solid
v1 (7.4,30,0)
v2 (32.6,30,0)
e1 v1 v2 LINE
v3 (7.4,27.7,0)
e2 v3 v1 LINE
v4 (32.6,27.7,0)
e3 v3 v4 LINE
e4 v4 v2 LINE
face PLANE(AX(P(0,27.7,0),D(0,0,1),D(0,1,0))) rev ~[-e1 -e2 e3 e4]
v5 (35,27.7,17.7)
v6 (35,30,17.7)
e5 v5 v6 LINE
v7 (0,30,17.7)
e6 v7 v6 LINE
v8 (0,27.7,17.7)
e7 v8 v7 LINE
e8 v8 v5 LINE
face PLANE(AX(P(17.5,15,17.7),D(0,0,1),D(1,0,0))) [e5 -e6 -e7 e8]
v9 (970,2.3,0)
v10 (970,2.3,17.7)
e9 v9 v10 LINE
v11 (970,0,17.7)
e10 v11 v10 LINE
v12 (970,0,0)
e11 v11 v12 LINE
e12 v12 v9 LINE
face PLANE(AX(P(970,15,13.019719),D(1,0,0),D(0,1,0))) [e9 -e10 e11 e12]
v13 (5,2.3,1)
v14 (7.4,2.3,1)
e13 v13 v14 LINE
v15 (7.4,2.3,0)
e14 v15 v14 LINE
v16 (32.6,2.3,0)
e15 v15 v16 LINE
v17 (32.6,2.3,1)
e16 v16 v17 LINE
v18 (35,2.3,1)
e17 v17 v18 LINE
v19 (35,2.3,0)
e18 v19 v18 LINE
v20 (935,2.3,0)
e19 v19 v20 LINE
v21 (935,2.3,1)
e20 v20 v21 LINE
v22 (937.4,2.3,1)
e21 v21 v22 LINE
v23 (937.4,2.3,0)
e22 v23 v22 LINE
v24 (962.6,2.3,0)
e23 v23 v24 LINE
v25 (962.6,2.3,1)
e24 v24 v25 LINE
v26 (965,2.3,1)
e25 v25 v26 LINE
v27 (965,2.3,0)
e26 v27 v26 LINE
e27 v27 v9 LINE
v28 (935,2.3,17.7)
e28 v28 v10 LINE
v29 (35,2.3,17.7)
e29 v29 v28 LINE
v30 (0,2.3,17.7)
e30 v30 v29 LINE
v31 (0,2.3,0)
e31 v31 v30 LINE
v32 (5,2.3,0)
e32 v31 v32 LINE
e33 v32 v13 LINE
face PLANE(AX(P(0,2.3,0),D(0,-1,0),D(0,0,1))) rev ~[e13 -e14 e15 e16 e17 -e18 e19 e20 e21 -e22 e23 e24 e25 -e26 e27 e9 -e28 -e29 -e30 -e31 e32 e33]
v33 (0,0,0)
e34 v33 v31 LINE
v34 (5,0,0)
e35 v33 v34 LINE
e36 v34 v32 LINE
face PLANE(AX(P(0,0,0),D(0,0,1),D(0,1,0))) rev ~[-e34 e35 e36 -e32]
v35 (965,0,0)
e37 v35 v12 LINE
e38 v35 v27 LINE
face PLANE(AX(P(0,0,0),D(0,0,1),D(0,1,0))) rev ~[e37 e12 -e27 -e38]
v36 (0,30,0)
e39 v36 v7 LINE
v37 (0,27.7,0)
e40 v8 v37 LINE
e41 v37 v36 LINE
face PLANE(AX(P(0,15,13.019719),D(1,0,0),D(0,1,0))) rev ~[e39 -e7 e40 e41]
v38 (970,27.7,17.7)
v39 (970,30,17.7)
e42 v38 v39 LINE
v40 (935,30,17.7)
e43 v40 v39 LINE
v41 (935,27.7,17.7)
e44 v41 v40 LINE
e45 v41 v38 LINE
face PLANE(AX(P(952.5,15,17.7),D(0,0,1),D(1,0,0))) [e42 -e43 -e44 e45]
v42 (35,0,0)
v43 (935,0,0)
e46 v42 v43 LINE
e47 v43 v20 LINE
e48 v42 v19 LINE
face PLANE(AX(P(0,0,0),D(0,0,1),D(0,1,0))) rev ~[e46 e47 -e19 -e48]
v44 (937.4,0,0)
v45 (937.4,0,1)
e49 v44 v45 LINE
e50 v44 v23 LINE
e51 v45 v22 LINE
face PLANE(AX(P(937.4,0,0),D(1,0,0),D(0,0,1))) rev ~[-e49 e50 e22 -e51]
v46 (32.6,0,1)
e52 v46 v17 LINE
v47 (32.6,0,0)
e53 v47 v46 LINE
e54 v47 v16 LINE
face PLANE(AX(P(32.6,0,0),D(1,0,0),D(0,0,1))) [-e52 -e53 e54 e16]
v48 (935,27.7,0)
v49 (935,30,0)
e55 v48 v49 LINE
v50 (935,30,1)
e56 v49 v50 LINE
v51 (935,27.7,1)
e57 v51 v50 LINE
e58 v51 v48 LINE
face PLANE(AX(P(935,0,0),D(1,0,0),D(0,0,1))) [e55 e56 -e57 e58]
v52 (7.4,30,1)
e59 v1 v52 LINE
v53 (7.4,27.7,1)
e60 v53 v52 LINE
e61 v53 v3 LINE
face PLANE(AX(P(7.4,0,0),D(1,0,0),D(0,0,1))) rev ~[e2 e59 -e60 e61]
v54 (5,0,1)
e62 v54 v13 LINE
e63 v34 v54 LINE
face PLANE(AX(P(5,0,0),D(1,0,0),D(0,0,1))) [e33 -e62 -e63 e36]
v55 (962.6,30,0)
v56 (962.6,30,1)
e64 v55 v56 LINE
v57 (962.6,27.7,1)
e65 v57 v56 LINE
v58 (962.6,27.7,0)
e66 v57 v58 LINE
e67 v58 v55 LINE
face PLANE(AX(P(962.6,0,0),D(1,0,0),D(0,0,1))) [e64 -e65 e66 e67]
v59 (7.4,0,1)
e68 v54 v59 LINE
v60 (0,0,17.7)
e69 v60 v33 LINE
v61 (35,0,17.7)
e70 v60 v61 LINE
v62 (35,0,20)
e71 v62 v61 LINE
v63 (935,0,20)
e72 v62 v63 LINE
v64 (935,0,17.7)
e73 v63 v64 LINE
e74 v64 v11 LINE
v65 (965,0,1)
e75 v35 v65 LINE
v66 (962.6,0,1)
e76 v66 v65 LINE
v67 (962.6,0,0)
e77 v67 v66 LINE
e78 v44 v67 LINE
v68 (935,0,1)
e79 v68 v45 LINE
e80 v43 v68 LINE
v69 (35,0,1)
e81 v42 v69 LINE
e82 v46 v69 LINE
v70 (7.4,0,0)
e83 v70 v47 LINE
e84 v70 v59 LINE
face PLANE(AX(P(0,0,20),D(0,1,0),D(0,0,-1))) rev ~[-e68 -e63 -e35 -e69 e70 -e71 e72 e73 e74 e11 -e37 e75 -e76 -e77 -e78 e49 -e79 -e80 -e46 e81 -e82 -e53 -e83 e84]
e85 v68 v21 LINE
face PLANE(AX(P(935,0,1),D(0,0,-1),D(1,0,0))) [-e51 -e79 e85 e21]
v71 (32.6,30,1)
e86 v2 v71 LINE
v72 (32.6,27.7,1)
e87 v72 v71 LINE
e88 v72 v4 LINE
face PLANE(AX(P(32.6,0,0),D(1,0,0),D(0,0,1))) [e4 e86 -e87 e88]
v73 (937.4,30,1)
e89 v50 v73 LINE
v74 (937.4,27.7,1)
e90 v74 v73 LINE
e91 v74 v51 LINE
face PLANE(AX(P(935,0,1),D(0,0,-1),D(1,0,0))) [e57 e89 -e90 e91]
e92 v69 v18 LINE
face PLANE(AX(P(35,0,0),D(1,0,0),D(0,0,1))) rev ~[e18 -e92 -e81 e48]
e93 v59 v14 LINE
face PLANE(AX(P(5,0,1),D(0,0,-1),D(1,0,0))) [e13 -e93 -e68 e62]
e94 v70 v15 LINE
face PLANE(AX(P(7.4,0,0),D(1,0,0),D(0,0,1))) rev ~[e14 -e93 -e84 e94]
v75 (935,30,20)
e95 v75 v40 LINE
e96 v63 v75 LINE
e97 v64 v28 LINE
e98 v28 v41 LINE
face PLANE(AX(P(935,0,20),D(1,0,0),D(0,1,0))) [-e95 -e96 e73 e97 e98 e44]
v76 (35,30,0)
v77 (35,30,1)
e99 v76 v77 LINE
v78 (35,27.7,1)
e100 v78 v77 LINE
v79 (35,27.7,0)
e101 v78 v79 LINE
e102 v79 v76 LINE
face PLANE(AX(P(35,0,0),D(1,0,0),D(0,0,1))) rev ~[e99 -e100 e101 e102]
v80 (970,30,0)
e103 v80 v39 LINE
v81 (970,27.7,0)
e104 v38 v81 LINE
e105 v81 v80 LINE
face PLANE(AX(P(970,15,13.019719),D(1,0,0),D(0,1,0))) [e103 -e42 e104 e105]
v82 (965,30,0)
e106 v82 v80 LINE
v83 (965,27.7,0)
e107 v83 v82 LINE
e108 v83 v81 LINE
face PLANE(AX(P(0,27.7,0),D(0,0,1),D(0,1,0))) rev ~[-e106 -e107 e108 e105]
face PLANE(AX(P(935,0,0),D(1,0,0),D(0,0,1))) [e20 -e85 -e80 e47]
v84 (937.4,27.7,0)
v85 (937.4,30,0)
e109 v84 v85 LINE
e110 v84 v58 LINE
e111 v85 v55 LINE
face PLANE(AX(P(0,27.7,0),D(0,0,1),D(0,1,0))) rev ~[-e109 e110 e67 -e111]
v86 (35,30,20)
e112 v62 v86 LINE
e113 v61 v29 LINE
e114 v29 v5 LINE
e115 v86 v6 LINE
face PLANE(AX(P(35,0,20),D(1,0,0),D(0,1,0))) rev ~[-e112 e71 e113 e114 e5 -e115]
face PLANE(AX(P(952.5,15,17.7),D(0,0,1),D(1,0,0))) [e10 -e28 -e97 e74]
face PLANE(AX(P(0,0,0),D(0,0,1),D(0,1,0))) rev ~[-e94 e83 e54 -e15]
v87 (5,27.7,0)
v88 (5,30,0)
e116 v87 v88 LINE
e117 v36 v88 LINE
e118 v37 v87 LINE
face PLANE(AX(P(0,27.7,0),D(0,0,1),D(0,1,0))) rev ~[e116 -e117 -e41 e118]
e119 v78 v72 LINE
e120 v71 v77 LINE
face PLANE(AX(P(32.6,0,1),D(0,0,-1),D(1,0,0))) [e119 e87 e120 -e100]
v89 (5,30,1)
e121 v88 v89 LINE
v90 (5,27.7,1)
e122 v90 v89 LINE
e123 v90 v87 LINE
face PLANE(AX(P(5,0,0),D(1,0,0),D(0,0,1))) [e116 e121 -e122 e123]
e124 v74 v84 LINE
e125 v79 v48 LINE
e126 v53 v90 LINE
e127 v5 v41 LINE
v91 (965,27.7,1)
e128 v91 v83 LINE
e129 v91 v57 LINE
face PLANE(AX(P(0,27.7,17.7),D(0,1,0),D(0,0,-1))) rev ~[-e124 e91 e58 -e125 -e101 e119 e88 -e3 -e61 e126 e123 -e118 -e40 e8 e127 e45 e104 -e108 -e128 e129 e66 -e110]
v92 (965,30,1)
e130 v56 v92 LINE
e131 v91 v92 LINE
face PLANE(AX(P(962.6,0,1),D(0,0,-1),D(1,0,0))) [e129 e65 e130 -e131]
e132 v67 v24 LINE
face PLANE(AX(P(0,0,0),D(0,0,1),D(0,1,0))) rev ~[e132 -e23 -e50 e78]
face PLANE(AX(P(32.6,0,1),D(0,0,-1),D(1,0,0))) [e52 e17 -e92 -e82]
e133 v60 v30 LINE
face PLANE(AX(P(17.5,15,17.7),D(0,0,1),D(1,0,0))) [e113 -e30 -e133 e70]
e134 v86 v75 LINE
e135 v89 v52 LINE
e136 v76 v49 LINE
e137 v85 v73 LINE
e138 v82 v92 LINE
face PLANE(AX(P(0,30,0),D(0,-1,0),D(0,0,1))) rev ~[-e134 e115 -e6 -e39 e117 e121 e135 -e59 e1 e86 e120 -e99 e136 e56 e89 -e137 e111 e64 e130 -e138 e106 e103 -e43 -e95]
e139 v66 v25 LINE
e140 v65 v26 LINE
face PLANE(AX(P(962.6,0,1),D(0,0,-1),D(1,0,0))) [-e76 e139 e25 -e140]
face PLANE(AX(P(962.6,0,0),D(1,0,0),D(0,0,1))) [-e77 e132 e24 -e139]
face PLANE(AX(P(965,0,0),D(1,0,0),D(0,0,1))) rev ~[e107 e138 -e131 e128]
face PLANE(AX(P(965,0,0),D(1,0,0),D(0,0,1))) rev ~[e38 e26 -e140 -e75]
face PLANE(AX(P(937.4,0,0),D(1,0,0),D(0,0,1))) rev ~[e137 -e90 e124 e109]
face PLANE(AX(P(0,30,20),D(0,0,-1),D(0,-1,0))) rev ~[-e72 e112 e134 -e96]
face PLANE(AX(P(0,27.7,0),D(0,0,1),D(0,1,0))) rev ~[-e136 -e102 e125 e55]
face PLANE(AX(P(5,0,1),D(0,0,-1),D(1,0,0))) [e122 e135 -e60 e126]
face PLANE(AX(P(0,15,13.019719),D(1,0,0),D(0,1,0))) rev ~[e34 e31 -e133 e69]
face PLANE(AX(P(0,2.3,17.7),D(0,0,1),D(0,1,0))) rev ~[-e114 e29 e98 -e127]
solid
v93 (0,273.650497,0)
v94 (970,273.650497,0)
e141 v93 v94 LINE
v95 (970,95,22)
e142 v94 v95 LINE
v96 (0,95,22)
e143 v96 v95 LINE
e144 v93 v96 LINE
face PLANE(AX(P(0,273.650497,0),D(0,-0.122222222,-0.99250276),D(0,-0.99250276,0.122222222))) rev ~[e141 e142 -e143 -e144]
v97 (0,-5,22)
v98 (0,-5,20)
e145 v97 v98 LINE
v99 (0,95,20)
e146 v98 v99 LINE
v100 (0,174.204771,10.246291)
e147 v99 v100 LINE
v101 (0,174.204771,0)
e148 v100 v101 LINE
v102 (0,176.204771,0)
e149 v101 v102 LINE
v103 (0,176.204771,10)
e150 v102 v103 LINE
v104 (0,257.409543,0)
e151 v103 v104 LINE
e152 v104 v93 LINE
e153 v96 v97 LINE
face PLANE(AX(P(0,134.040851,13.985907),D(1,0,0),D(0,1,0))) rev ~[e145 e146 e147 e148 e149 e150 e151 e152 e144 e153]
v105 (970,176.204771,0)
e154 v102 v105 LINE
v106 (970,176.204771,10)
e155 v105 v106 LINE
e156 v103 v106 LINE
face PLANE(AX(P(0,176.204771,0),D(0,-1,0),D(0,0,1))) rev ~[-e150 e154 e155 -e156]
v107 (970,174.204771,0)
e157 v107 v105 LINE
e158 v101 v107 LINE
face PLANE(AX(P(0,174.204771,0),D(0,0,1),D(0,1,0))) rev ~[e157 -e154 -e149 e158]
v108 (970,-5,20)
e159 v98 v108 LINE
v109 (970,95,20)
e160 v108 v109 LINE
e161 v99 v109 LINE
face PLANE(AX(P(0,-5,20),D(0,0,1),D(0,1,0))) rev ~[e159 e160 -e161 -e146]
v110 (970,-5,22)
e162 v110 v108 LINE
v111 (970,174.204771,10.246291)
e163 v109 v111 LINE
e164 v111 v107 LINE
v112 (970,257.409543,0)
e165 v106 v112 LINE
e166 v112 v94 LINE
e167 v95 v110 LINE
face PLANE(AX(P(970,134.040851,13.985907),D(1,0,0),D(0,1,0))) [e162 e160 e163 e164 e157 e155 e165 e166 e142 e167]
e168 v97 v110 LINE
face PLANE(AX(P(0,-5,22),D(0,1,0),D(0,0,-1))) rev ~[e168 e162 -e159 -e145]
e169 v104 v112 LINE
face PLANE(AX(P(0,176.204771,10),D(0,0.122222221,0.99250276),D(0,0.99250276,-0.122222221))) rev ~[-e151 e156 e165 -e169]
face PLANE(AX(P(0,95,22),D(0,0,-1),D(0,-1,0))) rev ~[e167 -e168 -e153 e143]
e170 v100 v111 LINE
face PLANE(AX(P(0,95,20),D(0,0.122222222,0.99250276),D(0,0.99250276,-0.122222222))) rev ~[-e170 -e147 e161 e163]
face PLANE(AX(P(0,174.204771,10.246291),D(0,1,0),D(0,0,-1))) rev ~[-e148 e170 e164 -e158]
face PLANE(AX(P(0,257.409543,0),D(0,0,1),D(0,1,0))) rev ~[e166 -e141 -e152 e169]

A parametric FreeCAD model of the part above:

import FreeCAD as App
import Part
import Sketcher
from FreeCAD import Vector


def add_polygon(sketch, points):
    """Adds a closed chain of lines whose ends are joined by coincident constraints."""
    first, n = sketch.GeometryCount, len(points)
    for a, b in zip(points, points[1:] + points[:1]):
        sketch.addGeometry(Part.LineSegment(App.Vector(*a, 0), App.Vector(*b, 0)), False)
    for i in range(n):
        sketch.addConstraint(Sketcher.Constraint("Coincident", first + i, 2, first + (i + 1) % n, 1))

doc = App.newDocument("Part")
params = doc.addObject("Spreadsheet::Sheet", "Params")
for row, (alias, value) in enumerate([
    ("sketch1_width", "30 mm"),
    ("sketch1_height", "20 mm"),
    ("sketch1_width2", "2.3 mm"),
    ("sketch1_height2", "17.7 mm"),
    ("pad1_length", "970 mm"),
    ("sketch2_width", "35 mm"),
    ("sketch2_height", "30 mm"),
    ("pocket1_length", "2.3 mm"),
    ("sketch3_height", "1 mm"),
    ("sketch3_width", "2.4 mm"),
    ("sketch4_width", "100 mm"),
    ("sketch4_width2", "2 mm"),
    ("sketch4_height", "10 mm"),
    ("sketch4_length", "180 mm"),
    ("pad2_length", "970 mm"),
], start=1):
    params.set(f"A{row}", alias)
    params.set(f"B{row}", "=" + value)
    params.setAlias(f"B{row}", alias)

body = doc.addObject("PartDesign::Body", "Body")

# Sketch on YZ plane
sketch1 = doc.addObject("Sketcher::SketchObject", "Sketch")
body.addObject(sketch1)
sketch1.AttachmentSupport = (doc.YZ_Plane, [""])
sketch1.MapMode = "FlatFace"
add_polygon(sketch1, [(0, 20), (0, 0), (2.3, 0), (2.3, 17.7), (27.7, 17.7), (27.7, 0), (30, 0), (30, 20)])  # lines 0-7
sketch1.addConstraint(Sketcher.Constraint("Vertical", 0))
sketch1.addConstraint(Sketcher.Constraint("Horizontal", 1))
sketch1.addConstraint(Sketcher.Constraint("Vertical", 2))
sketch1.addConstraint(Sketcher.Constraint("Horizontal", 3))
sketch1.addConstraint(Sketcher.Constraint("Vertical", 4))
sketch1.addConstraint(Sketcher.Constraint("Horizontal", 5))
sketch1.addConstraint(Sketcher.Constraint("Vertical", 6))
sketch1.addConstraint(Sketcher.Constraint("Horizontal", 7))
sketch1.addConstraint(Sketcher.Constraint("Coincident", 0, 2, -1, 1))
sketch1.addConstraint(Sketcher.Constraint("PointOnObject", 4, 2, -1))
sketch1.addConstraint(Sketcher.Constraint("Equal", 1, 5))
sketch1.addConstraint(Sketcher.Constraint("DistanceX", 7, 2, 7, 1, 30.0))
sketch1.addConstraint(Sketcher.Constraint("DistanceY", 0, 2, 0, 1, 20.0))
sketch1.addConstraint(Sketcher.Constraint("DistanceX", 1, 1, 1, 2, 2.3))
sketch1.addConstraint(Sketcher.Constraint("DistanceY", 2, 1, 2, 2, 17.7))
sketch1.setExpression("Constraints[19]", "Params.sketch1_width")
sketch1.setExpression("Constraints[20]", "Params.sketch1_height")
sketch1.setExpression("Constraints[21]", "Params.sketch1_width2")
sketch1.setExpression("Constraints[22]", "Params.sketch1_height2")
pad1 = doc.addObject("PartDesign::Pad", "Pad")
body.addObject(pad1)
pad1.Profile = sketch1
pad1.setExpression("Length", "Params.pad1_length")

# Sketch on XY plane
sketch2 = doc.addObject("Sketcher::SketchObject", "Sketch001")
body.addObject(sketch2)
sketch2.AttachmentSupport = (doc.XY_Plane, [""])
sketch2.MapMode = "FlatFace"
sketch2.AttachmentOffset = App.Placement(Vector(0, 0, 20), App.Rotation())
add_polygon(sketch2, [(0, 30), (0, 0), (35, 0), (35, 30)])  # lines 0-3
add_polygon(sketch2, [(935, 30), (935, 0), (970, 0), (970, 30)])  # lines 4-7
sketch2.addConstraint(Sketcher.Constraint("Vertical", 0))
sketch2.addConstraint(Sketcher.Constraint("Horizontal", 1))
sketch2.addConstraint(Sketcher.Constraint("Vertical", 2))
sketch2.addConstraint(Sketcher.Constraint("Horizontal", 3))
sketch2.addConstraint(Sketcher.Constraint("Vertical", 4))
sketch2.addConstraint(Sketcher.Constraint("Horizontal", 5))
sketch2.addConstraint(Sketcher.Constraint("Vertical", 6))
sketch2.addConstraint(Sketcher.Constraint("Horizontal", 7))
sketch2.addConstraint(Sketcher.Constraint("Coincident", 0, 2, -1, 1))
sketch2.addConstraint(Sketcher.Constraint("PointOnObject", 4, 2, -1))
sketch2.addConstraint(Sketcher.Constraint("Horizontal", 3, 2, 6, 2))
sketch2.addConstraint(Sketcher.Constraint("Equal", 3, 5))
sketch2.addConstraint(Sketcher.Constraint("DistanceX", 1, 1, 1, 2, 35.0))
sketch2.addConstraint(Sketcher.Constraint("DistanceY", 0, 2, 0, 1, 30.0))
sketch2.addConstraint(Sketcher.Constraint("DistanceX", -1, 1, 4, 2, 935.0))
sketch2.setExpression("Constraints[20]", "Params.sketch2_width")
sketch2.setExpression("Constraints[21]", "Params.sketch2_height")
pocket1 = doc.addObject("PartDesign::Pocket", "Pocket")
body.addObject(pocket1)
pocket1.Profile = sketch2
pocket1.setExpression("Length", "Params.pocket1_length")

# Sketch on XZ plane
sketch3 = doc.addObject("Sketcher::SketchObject", "Sketch002")
body.addObject(sketch3)
sketch3.AttachmentSupport = (doc.XZ_Plane, [""])
sketch3.MapMode = "FlatFace"
add_polygon(sketch3, [(32.6, 1), (32.6, 0), (35, 0), (35, 1)])  # lines 0-3
add_polygon(sketch3, [(5, 1), (5, 0), (7.4, 0), (7.4, 1)])  # lines 4-7
add_polygon(sketch3, [(935, 1), (935, 0), (937.4, 0), (937.4, 1)])  # lines 8-11
add_polygon(sketch3, [(962.6, 1), (962.6, 0), (965, 0), (965, 1)])  # lines 12-15
sketch3.addConstraint(Sketcher.Constraint("Vertical", 0))
sketch3.addConstraint(Sketcher.Constraint("Horizontal", 1))
sketch3.addConstraint(Sketcher.Constraint("Vertical", 2))
sketch3.addConstraint(Sketcher.Constraint("Horizontal", 3))
sketch3.addConstraint(Sketcher.Constraint("Vertical", 4))
sketch3.addConstraint(Sketcher.Constraint("Horizontal", 5))
sketch3.addConstraint(Sketcher.Constraint("Vertical", 6))
sketch3.addConstraint(Sketcher.Constraint("Horizontal", 7))
sketch3.addConstraint(Sketcher.Constraint("Vertical", 8))
sketch3.addConstraint(Sketcher.Constraint("Horizontal", 9))
sketch3.addConstraint(Sketcher.Constraint("Vertical", 10))
sketch3.addConstraint(Sketcher.Constraint("Horizontal", 11))
sketch3.addConstraint(Sketcher.Constraint("Vertical", 12))
sketch3.addConstraint(Sketcher.Constraint("Horizontal", 13))
sketch3.addConstraint(Sketcher.Constraint("Vertical", 14))
sketch3.addConstraint(Sketcher.Constraint("Horizontal", 15))
sketch3.addConstraint(Sketcher.Constraint("PointOnObject", 0, 2, -1))
sketch3.addConstraint(Sketcher.Constraint("PointOnObject", 4, 2, -1))
sketch3.addConstraint(Sketcher.Constraint("PointOnObject", 8, 2, -1))
sketch3.addConstraint(Sketcher.Constraint("PointOnObject", 12, 2, -1))
sketch3.addConstraint(Sketcher.Constraint("Horizontal", 3, 2, 6, 2))
sketch3.addConstraint(Sketcher.Constraint("Horizontal", 7, 2, 10, 2))
sketch3.addConstraint(Sketcher.Constraint("Horizontal", 11, 2, 14, 2))
sketch3.addConstraint(Sketcher.Constraint("Equal", 3, 5))
sketch3.addConstraint(Sketcher.Constraint("Equal", 7, 9))
sketch3.addConstraint(Sketcher.Constraint("Equal", 11, 13))
sketch3.addConstraint(Sketcher.Constraint("DistanceY", 0, 2, 0, 1, 1.0))
sketch3.addConstraint(Sketcher.Constraint("DistanceX", 1, 1, 1, 2, 2.4))
sketch3.addConstraint(Sketcher.Constraint("DistanceX", -1, 1, 1, 2, 35.0))
sketch3.addConstraint(Sketcher.Constraint("DistanceX", -1, 1, 4, 2, 5.0))
sketch3.addConstraint(Sketcher.Constraint("DistanceX", -1, 1, 8, 2, 935.0))
sketch3.addConstraint(Sketcher.Constraint("DistanceX", -1, 1, 13, 2, 965.0))
sketch3.setExpression("Constraints[42]", "Params.sketch3_height")
sketch3.setExpression("Constraints[43]", "Params.sketch3_width")
pocket2 = doc.addObject("PartDesign::Pocket", "Pocket001")
body.addObject(pocket2)
pocket2.Profile = sketch3
pocket2.Type = "ThroughAll"
body2 = doc.addObject("PartDesign::Body", "Body001")

# Sketch on YZ plane
sketch4 = doc.addObject("Sketcher::SketchObject", "Sketch003")
body2.addObject(sketch4)
sketch4.AttachmentSupport = (doc.getObject("YZ_Plane001"), [""])
sketch4.MapMode = "FlatFace"
add_polygon(sketch4, [(-5, 20), (95, 20), (174.2, 10.2), (174.2, 0), (176.2, 0), (176.2, 10), (257.4, 0), (273.7, 0), (95, 22), (-5, 22)])  # lines 0-9
sketch4.addConstraint(Sketcher.Constraint("Horizontal", 0))
sketch4.addConstraint(Sketcher.Constraint("Vertical", 2))
sketch4.addConstraint(Sketcher.Constraint("Horizontal", 3))
sketch4.addConstraint(Sketcher.Constraint("Vertical", 4))
sketch4.addConstraint(Sketcher.Constraint("Horizontal", 6))
sketch4.addConstraint(Sketcher.Constraint("Horizontal", 8))
sketch4.addConstraint(Sketcher.Constraint("Vertical", 9))
sketch4.addConstraint(Sketcher.Constraint("PointOnObject", 2, 2, -1))
sketch4.addConstraint(Sketcher.Constraint("PointOnObject", 5, 2, -1))
sketch4.addConstraint(Sketcher.Constraint("Parallel", 1, 5))
sketch4.addConstraint(Sketcher.Constraint("Parallel", 5, 7))
sketch4.addConstraint(Sketcher.Constraint("Vertical", 0, 2, 7, 2))
sketch4.addConstraint(Sketcher.Constraint("Equal", 3, 9))
sketch4.addConstraint(Sketcher.Constraint("DistanceX", 0, 1, 0, 2, 100.0))
sketch4.addConstraint(Sketcher.Constraint("DistanceX", 3, 1, 3, 2, 2.0))
sketch4.addConstraint(Sketcher.Constraint("DistanceY", 4, 1, 4, 2, 10.0))
sketch4.addConstraint(Sketcher.Constraint("Distance", 7, 180.0))
sketch4.addConstraint(Sketcher.Constraint("DistanceX", -1, 1, 0, 2, 95.0))
sketch4.addConstraint(Sketcher.Constraint("DistanceY", -1, 1, 0, 2, 20.0))
sketch4.addConstraint(Sketcher.Constraint("DistanceY", 2, 2, 2, 1, 10.246291))
sketch4.setExpression("Constraints[23]", "Params.sketch4_width")
sketch4.setExpression("Constraints[24]", "Params.sketch4_width2")
sketch4.setExpression("Constraints[25]", "Params.sketch4_height")
sketch4.setExpression("Constraints[26]", "Params.sketch4_length")
pad2 = doc.addObject("PartDesign::Pad", "Pad001")
body2.addObject(pad2)
pad2.Profile = sketch4
pad2.setExpression("Length", "Params.pad2_length")

doc.recompute()
